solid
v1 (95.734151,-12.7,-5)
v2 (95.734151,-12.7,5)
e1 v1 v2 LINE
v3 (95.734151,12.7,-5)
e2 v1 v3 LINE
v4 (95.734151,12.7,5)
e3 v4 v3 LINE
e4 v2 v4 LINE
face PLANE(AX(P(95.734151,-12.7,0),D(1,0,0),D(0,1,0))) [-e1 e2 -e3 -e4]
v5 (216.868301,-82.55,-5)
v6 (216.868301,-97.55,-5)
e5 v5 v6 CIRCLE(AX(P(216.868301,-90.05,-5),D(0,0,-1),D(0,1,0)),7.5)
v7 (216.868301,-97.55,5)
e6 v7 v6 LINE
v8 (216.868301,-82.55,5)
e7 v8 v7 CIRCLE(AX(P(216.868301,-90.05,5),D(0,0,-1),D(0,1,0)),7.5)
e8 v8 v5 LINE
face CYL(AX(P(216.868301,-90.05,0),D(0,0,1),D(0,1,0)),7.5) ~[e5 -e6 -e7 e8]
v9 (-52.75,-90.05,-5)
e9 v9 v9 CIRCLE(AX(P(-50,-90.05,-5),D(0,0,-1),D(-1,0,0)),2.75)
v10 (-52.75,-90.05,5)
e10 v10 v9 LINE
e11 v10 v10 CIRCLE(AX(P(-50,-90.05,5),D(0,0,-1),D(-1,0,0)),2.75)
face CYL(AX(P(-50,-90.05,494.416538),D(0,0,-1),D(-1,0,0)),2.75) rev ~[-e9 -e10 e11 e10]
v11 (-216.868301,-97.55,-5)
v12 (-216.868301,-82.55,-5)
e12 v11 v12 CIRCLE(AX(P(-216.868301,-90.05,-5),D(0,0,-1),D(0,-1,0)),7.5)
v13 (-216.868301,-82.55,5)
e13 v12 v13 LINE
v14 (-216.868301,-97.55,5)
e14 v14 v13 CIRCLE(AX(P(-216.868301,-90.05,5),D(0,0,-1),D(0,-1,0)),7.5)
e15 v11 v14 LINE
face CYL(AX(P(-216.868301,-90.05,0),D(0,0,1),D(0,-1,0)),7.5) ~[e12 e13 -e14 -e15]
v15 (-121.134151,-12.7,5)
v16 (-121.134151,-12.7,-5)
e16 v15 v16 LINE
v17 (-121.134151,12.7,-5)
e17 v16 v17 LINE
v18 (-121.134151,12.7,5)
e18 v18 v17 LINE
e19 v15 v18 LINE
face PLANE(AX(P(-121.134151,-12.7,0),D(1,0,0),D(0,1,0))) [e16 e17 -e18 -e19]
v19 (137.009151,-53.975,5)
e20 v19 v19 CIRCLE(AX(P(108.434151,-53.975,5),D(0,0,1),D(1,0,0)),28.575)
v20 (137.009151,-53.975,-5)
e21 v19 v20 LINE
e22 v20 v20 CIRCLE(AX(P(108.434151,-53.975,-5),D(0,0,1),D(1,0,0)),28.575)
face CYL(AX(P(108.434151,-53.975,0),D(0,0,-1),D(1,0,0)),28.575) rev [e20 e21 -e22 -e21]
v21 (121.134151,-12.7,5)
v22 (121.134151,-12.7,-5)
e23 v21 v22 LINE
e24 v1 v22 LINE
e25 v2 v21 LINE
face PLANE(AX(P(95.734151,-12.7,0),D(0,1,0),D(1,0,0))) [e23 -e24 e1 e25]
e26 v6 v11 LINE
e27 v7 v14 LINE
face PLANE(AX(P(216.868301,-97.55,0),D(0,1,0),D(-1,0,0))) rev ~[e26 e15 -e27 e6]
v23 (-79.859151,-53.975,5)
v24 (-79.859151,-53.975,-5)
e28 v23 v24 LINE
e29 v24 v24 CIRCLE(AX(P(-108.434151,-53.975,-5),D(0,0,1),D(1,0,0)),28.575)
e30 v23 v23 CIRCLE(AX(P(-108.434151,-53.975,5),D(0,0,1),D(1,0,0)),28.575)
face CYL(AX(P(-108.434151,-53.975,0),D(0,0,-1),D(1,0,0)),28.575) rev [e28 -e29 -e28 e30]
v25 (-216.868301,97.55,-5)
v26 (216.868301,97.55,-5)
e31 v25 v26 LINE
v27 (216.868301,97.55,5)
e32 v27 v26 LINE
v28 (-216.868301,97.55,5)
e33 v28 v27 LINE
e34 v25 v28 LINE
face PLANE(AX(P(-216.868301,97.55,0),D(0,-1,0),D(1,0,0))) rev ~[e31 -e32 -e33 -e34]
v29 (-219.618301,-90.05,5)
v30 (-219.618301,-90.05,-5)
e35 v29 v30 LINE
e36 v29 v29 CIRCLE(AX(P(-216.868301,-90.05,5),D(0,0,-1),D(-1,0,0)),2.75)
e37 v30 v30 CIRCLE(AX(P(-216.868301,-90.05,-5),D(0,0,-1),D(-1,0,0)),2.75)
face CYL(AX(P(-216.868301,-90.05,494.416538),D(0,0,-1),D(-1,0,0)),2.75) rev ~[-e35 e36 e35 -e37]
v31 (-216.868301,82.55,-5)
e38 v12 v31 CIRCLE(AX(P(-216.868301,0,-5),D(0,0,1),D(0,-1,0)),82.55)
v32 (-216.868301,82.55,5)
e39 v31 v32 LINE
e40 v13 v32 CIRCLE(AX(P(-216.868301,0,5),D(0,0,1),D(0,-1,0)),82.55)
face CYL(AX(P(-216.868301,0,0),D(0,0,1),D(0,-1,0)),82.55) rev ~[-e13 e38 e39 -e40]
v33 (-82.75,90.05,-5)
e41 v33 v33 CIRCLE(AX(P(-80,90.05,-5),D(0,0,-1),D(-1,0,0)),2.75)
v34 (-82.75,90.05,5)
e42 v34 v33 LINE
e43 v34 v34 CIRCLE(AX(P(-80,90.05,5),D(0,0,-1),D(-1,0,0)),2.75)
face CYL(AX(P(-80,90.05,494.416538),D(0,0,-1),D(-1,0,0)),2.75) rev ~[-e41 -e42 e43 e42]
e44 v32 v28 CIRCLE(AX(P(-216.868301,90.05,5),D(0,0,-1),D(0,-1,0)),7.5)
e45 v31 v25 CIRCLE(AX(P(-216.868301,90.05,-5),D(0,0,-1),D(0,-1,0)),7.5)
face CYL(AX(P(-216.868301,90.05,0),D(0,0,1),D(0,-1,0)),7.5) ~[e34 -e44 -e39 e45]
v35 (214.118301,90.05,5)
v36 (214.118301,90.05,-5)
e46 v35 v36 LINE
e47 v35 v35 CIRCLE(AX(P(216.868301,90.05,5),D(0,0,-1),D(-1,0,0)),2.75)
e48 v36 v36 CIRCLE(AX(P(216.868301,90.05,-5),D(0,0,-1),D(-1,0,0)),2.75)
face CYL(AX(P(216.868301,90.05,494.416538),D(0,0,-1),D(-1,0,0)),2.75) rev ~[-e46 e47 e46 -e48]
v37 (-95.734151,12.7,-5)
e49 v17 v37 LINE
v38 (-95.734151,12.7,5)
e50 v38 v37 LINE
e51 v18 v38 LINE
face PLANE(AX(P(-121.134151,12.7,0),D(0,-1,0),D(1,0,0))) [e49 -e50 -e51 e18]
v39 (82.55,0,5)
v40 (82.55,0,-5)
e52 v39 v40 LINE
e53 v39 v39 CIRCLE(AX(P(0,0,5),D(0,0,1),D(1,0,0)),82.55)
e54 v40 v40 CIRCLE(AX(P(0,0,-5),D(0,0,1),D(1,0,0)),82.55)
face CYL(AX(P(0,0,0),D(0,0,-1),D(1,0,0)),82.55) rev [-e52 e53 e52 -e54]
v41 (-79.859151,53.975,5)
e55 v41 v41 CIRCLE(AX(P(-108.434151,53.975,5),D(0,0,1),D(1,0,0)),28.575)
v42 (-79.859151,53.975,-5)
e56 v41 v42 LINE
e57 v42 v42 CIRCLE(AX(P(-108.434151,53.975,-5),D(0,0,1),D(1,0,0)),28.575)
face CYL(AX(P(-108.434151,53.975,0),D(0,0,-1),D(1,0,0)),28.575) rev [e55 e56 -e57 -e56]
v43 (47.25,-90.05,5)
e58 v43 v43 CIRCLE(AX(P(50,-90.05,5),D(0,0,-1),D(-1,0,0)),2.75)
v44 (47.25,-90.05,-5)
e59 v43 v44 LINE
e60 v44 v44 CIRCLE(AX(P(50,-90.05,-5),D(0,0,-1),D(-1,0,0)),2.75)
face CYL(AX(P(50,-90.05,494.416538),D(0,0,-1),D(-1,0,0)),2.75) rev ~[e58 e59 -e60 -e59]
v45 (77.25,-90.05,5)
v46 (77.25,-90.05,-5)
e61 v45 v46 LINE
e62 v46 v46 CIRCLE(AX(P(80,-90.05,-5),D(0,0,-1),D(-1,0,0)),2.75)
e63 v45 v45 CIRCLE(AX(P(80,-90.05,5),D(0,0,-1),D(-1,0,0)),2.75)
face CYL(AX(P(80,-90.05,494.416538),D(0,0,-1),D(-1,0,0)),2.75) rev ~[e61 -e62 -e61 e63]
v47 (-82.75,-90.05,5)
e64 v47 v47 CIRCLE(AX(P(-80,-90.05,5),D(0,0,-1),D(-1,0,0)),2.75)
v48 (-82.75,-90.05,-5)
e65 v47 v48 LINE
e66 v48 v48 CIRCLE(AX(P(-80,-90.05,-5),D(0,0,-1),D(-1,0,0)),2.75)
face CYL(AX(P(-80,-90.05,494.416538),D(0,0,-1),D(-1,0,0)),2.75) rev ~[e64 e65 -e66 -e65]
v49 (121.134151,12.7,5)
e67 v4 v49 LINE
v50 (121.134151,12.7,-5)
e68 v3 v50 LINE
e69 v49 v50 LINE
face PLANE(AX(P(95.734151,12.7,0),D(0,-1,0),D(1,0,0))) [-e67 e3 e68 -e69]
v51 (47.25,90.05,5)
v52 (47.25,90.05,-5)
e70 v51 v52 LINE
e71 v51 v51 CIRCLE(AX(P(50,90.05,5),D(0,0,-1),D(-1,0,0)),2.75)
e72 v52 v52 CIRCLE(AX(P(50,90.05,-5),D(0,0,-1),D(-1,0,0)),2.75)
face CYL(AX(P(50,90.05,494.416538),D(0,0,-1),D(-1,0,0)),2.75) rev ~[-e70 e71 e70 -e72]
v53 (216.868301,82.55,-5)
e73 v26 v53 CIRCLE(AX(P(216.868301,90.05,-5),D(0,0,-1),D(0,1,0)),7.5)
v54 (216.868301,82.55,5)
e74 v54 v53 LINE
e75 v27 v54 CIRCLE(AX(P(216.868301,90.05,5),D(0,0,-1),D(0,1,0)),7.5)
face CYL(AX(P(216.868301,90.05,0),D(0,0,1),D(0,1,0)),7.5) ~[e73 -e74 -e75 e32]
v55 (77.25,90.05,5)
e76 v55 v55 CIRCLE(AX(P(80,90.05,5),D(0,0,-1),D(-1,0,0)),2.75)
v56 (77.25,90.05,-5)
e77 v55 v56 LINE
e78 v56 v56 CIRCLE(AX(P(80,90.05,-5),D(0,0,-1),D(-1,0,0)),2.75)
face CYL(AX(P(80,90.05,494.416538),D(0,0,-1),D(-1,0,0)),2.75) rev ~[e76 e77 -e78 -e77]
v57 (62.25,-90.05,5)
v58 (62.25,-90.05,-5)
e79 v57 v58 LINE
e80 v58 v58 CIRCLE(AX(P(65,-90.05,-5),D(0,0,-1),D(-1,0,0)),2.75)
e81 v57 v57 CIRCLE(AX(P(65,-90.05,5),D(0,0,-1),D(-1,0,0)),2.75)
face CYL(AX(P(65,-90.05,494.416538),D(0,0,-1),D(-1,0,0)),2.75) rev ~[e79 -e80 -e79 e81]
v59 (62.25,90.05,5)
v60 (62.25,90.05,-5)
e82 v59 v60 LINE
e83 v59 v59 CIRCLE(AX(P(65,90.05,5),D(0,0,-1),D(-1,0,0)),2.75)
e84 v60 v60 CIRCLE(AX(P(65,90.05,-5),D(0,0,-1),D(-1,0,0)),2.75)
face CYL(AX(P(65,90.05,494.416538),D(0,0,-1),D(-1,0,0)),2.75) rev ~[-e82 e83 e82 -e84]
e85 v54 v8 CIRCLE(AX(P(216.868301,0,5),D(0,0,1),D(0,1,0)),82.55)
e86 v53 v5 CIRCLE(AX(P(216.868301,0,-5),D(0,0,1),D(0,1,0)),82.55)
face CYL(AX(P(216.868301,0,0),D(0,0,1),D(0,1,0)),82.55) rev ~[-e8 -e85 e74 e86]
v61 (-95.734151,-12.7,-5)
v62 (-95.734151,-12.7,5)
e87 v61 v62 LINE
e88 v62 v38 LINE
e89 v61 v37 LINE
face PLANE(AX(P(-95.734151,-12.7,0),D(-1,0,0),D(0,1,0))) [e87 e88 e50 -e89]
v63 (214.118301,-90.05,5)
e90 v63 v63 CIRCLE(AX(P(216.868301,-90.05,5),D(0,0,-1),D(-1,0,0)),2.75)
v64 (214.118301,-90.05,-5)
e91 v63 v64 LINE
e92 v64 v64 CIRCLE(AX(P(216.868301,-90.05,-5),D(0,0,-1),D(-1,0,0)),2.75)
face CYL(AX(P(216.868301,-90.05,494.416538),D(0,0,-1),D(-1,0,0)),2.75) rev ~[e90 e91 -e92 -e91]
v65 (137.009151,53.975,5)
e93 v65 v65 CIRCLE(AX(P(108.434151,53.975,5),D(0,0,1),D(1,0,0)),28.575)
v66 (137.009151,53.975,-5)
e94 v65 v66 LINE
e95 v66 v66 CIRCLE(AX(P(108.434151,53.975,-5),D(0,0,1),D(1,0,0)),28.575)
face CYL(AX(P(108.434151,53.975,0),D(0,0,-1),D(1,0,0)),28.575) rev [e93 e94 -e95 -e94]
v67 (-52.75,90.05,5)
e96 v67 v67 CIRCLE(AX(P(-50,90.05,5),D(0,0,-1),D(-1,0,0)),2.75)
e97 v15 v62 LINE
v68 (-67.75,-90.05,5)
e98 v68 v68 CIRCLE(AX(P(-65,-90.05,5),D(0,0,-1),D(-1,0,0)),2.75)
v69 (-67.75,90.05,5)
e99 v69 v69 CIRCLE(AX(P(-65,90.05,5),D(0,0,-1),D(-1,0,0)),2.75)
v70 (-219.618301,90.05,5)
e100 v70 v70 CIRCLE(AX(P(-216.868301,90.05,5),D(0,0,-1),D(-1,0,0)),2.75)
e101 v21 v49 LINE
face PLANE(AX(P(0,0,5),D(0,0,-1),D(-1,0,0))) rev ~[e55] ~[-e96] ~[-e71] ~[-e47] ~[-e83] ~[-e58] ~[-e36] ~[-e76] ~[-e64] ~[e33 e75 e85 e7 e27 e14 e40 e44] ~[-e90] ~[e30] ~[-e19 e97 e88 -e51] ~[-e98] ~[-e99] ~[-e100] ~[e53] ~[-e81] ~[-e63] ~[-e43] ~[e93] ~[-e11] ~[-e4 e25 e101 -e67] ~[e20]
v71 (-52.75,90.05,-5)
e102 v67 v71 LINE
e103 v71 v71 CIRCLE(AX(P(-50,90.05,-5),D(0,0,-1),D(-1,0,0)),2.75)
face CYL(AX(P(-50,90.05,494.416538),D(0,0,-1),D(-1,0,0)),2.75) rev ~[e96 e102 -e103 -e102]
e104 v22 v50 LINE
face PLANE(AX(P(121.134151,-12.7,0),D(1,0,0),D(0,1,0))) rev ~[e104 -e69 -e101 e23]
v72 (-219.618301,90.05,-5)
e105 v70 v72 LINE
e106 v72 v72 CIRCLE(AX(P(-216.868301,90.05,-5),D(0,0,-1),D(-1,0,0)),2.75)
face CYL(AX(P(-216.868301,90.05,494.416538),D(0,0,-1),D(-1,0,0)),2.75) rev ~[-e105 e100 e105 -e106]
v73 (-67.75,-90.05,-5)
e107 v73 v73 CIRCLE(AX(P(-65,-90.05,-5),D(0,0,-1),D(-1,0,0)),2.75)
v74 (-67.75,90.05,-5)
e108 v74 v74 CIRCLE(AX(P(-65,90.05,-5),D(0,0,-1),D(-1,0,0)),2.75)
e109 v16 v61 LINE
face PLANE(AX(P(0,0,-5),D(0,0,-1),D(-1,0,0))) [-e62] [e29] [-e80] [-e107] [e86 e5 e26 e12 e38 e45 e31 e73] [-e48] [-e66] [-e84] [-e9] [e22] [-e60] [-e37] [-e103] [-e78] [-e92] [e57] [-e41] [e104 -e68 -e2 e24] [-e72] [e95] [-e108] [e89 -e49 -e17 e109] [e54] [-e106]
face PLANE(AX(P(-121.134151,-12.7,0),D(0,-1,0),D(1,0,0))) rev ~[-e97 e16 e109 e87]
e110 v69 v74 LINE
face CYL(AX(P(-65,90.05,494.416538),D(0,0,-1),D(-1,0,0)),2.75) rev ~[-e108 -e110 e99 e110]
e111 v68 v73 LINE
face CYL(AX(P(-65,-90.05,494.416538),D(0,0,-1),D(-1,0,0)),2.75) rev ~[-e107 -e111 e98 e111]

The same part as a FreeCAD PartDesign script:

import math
import FreeCAD as App
import Part
import Sketcher
Q = App.Units.Quantity

doc = App.newDocument("Part")
body = doc.addObject("PartDesign::Body", "Body")

sketch1 = doc.addObject("Sketcher::SketchObject", "Sketch")
body.addObject(sketch1)
sketch1.AttachmentSupport = (doc.XY_Plane, [""])
sketch1.MapMode = "FlatFace"
sketch1.addGeometry([
    Part.LineSegment(App.Vector(217, 98, 0), App.Vector(-217, 98, 0)),
    Part.ArcOfCircle(Part.Circle(App.Vector(-217, 90, 0), App.Vector(0, 0, 1), 8), math.radians(90), math.radians(270)),
    Part.ArcOfCircle(Part.Circle(App.Vector(-217, 0, 0), App.Vector(0, 0, 1), 83), math.radians(-90), math.radians(90)),
    Part.ArcOfCircle(Part.Circle(App.Vector(-217, -90, 0), App.Vector(0, 0, 1), 8), math.radians(90), math.radians(270)),
    Part.LineSegment(App.Vector(-217, -98, 0), App.Vector(217, -98, 0)),
    Part.ArcOfCircle(Part.Circle(App.Vector(217, -90, 0), App.Vector(0, 0, 1), 8), math.radians(-90), math.radians(90)),
    Part.ArcOfCircle(Part.Circle(App.Vector(217, 0, 0), App.Vector(0, 0, 1), 83), math.radians(90), math.radians(270)),
    Part.ArcOfCircle(Part.Circle(App.Vector(217, 90, 0), App.Vector(0, 0, 1), 8), math.radians(-90), math.radians(90)),
    Part.Circle(App.Vector(108, -54, 0), App.Vector(0, 0, 1), 29),
    Part.Circle(App.Vector(-108, -54, 0), App.Vector(0, 0, 1), 29),
    Part.LineSegment(App.Vector(96, -13, 0), App.Vector(96, 13, 0)),
    Part.LineSegment(App.Vector(96, 13, 0), App.Vector(121, 13, 0)),
    Part.LineSegment(App.Vector(121, 13, 0), App.Vector(121, -13, 0)),
    Part.LineSegment(App.Vector(121, -13, 0), App.Vector(96, -13, 0)),
    Part.Circle(App.Vector(108, 54, 0), App.Vector(0, 0, 1), 29),
    Part.Circle(App.Vector(0, 0, 0), App.Vector(0, 0, 1), 83),
    Part.LineSegment(App.Vector(-121, -13, 0), App.Vector(-121, 13, 0)),
    Part.LineSegment(App.Vector(-121, 13, 0), App.Vector(-96, 13, 0)),
    Part.LineSegment(App.Vector(-96, 13, 0), App.Vector(-96, -13, 0)),
    Part.LineSegment(App.Vector(-96, -13, 0), App.Vector(-121, -13, 0)),
    Part.Circle(App.Vector(-108, 54, 0), App.Vector(0, 0, 1), 29),
], False)
sketch1.addConstraint([
    Sketcher.Constraint("Tangent", 0, 2, 1, 1),
    Sketcher.Constraint("Tangent", 1, 2, 2, 2),
    Sketcher.Constraint("Tangent", 2, 1, 3, 1),
    Sketcher.Constraint("Tangent", 3, 2, 4, 1),
    Sketcher.Constraint("Tangent", 4, 2, 5, 1),
    Sketcher.Constraint("Tangent", 5, 2, 6, 2),
    Sketcher.Constraint("Tangent", 6, 1, 7, 1),
    Sketcher.Constraint("Tangent", 7, 2, 0, 1),
    Sketcher.Constraint("Coincident", 10, 2, 11, 1),
    Sketcher.Constraint("Coincident", 11, 2, 12, 1),
    Sketcher.Constraint("Coincident", 12, 2, 13, 1),
    Sketcher.Constraint("Coincident", 13, 2, 10, 1),
    Sketcher.Constraint("Coincident", 16, 2, 17, 1),
    Sketcher.Constraint("Coincident", 17, 2, 18, 1),
    Sketcher.Constraint("Coincident", 18, 2, 19, 1),
    Sketcher.Constraint("Coincident", 19, 2, 16, 1),
    Sketcher.Constraint("Horizontal", 0),
    Sketcher.Constraint("Horizontal", 4),
    Sketcher.Constraint("Vertical", 10),
    Sketcher.Constraint("Horizontal", 11),
    Sketcher.Constraint("Vertical", 12),
    Sketcher.Constraint("Horizontal", 13),
    Sketcher.Constraint("Vertical", 16),
    Sketcher.Constraint("Horizontal", 17),
    Sketcher.Constraint("Vertical", 18),
    Sketcher.Constraint("Horizontal", 19),
    Sketcher.Constraint("Coincident", 15, 3, -1, 1),
    Sketcher.Constraint("Equal", 1, 3),
    Sketcher.Constraint("Equal", 3, 5),
    Sketcher.Constraint("Equal", 2, 6),
    Sketcher.Constraint("Equal", 8, 9),
    Sketcher.Constraint("Equal", 9, 14),
    Sketcher.Constraint("Equal", 6, 15),
    Sketcher.Constraint("Equal", 14, 20),
    Sketcher.Constraint("Symmetric", 1, 3, 5, 3, -1, 1),
    Sketcher.Constraint("Symmetric", 9, 3, 14, 3, -1, 1),
    Sketcher.Constraint("Symmetric", 8, 3, 20, 3, -1, 1),
    Sketcher.Constraint("Symmetric", 12, 2, 16, 2, -1, 1),
    Sketcher.Constraint("Symmetric", 10, 2, 18, 2, -1, 1),
    Sketcher.Constraint("Symmetric", 8, 3, 9, 3, -2),
    Sketcher.Constraint("Horizontal", 11, 2, 16, 2),
    Sketcher.Constraint("Vertical", 1, 3, 2, 3),
    Sketcher.Constraint("Vertical", 2, 3, 3, 3),
    Sketcher.Constraint("Vertical", 5, 3, 6, 3),
    Sketcher.Constraint("Vertical", 6, 3, 7, 3),
    Sketcher.Constraint("Equal", 19, 10),
    Sketcher.Constraint("Diameter", 15, Q("165.1 mm")),
    Sketcher.Constraint("Radius", 1, Q("7.5 mm")),
    Sketcher.Constraint("Diameter", 8, Q("57.15 mm")),
    Sketcher.Constraint("DistanceX", 11, 1, 11, 2, Q("25.4 mm")),
    Sketcher.Constraint("DistanceX", 10, 2, 14, 3, Q("12.7 mm")),
    Sketcher.Constraint("DistanceY", 8, 3, 14, 3, Q("107.95 mm")),
    Sketcher.Constraint("DistanceX", 1, 3, -1, 1, Q("216.868301 mm")),
    Sketcher.Constraint("DistanceX", 9, 3, 8, 3, Q("216.868301 mm")),
])
pad1 = doc.addObject("PartDesign::Pad", "Pad")
body.addObject(pad1)
pad1.Profile = sketch1
pad1.Length = 10
pad1.Midplane = True

sketch2 = doc.addObject("Sketcher::SketchObject", "Sketch001")
body.addObject(sketch2)
sketch2.AttachmentSupport = (doc.XY_Plane, [""])
sketch2.MapMode = "FlatFace"
sketch2.AttachmentOffset = App.Placement(App.Vector(0, 0, 5), App.Rotation())
sketch2.addGeometry([
    Part.Circle(App.Vector(-80, 90, 0), App.Vector(0, 0, 1), 2.8),
    Part.Circle(App.Vector(-65, 90, 0), App.Vector(0, 0, 1), 2.8),
    Part.Circle(App.Vector(-50, 90, 0), App.Vector(0, 0, 1), 2.8),
    Part.Circle(App.Vector(50, 90, 0), App.Vector(0, 0, 1), 2.8),
    Part.Circle(App.Vector(65, 90, 0), App.Vector(0, 0, 1), 2.8),
    Part.Circle(App.Vector(80, 90, 0), App.Vector(0, 0, 1), 2.8),
    Part.Circle(App.Vector(-80, -90, 0), App.Vector(0, 0, 1), 2.8),
    Part.Circle(App.Vector(-65, -90, 0), App.Vector(0, 0, 1), 2.8),
    Part.Circle(App.Vector(-50, -90, 0), App.Vector(0, 0, 1), 2.8),
    Part.Circle(App.Vector(50, -90, 0), App.Vector(0, 0, 1), 2.8),
    Part.Circle(App.Vector(65, -90, 0), App.Vector(0, 0, 1), 2.8),
    Part.Circle(App.Vector(80, -90, 0), App.Vector(0, 0, 1), 2.8),
    Part.Circle(App.Vector(-216.9, 90, 0), App.Vector(0, 0, 1), 2.8),
    Part.Circle(App.Vector(216.9, 90, 0), App.Vector(0, 0, 1), 2.8),
    Part.Circle(App.Vector(-216.9, -90, 0), App.Vector(0, 0, 1), 2.8),
    Part.Circle(App.Vector(216.9, -90, 0), App.Vector(0, 0, 1), 2.8),
], False)
sketch2.addConstraint([
    Sketcher.Constraint("Equal", 0, 1),
    Sketcher.Constraint("Equal", 1, 2),
    Sketcher.Constraint("Equal", 2, 3),
    Sketcher.Constraint("Equal", 3, 4),
    Sketcher.Constraint("Equal", 4, 5),
    Sketcher.Constraint("Equal", 5, 6),
    Sketcher.Constraint("Equal", 6, 7),
    Sketcher.Constraint("Equal", 7, 8),
    Sketcher.Constraint("Equal", 8, 9),
    Sketcher.Constraint("Equal", 9, 10),
    Sketcher.Constraint("Equal", 10, 11),
    Sketcher.Constraint("Equal", 11, 12),
    Sketcher.Constraint("Equal", 12, 13),
    Sketcher.Constraint("Equal", 13, 14),
    Sketcher.Constraint("Equal", 14, 15),
    Sketcher.Constraint("Symmetric", 5, 3, 6, 3, -1, 1),
    Sketcher.Constraint("Symmetric", 4, 3, 7, 3, -1, 1),
    Sketcher.Constraint("Symmetric", 3, 3, 8, 3, -1, 1),
    Sketcher.Constraint("Symmetric", 2, 3, 9, 3, -1, 1),
    Sketcher.Constraint("Symmetric", 1, 3, 10, 3, -1, 1),
    Sketcher.Constraint("Symmetric", 0, 3, 11, 3, -1, 1),
    Sketcher.Constraint("Symmetric", 13, 3, 14, 3, -1, 1),
    Sketcher.Constraint("Symmetric", 12, 3, 15, 3, -1, 1),
    Sketcher.Constraint("Symmetric", 2, 3, 3, 3, -2),
    Sketcher.Constraint("Symmetric", 1, 3, 4, 3, -2),
    Sketcher.Constraint("Symmetric", 0, 3, 5, 3, -2),
    Sketcher.Constraint("Symmetric", 12, 3, 13, 3, -2),
    Sketcher.Constraint("Horizontal", 0, 3, 1, 3),
    Sketcher.Constraint("Horizontal", 1, 3, 2, 3),
    Sketcher.Constraint("Horizontal", 5, 3, 12, 3),
    Sketcher.Constraint("Diameter", 0, Q("5.5 mm")),
    Sketcher.Constraint("DistanceX", 0, 3, -1, 1, Q("80 mm")),
    Sketcher.Constraint("DistanceX", 1, 3, -1, 1, Q("65 mm")),
    Sketcher.Constraint("DistanceX", 2, 3, -1, 1, Q("50 mm")),
    Sketcher.Constraint("DistanceY", 6, 3, 0, 3, Q("180.1 mm")),
    Sketcher.Constraint("DistanceX", 12, 3, -1, 1, Q("216.868301 mm")),
])
doc.recompute()
hole = doc.addObject("PartDesign::Hole", "Hole")
body.addObject(hole)
hole.Profile = sketch2
hole.ThreadType = "None"
hole.Diameter = 5.5
hole.DepthType = "ThroughAll"

doc.recompute()
